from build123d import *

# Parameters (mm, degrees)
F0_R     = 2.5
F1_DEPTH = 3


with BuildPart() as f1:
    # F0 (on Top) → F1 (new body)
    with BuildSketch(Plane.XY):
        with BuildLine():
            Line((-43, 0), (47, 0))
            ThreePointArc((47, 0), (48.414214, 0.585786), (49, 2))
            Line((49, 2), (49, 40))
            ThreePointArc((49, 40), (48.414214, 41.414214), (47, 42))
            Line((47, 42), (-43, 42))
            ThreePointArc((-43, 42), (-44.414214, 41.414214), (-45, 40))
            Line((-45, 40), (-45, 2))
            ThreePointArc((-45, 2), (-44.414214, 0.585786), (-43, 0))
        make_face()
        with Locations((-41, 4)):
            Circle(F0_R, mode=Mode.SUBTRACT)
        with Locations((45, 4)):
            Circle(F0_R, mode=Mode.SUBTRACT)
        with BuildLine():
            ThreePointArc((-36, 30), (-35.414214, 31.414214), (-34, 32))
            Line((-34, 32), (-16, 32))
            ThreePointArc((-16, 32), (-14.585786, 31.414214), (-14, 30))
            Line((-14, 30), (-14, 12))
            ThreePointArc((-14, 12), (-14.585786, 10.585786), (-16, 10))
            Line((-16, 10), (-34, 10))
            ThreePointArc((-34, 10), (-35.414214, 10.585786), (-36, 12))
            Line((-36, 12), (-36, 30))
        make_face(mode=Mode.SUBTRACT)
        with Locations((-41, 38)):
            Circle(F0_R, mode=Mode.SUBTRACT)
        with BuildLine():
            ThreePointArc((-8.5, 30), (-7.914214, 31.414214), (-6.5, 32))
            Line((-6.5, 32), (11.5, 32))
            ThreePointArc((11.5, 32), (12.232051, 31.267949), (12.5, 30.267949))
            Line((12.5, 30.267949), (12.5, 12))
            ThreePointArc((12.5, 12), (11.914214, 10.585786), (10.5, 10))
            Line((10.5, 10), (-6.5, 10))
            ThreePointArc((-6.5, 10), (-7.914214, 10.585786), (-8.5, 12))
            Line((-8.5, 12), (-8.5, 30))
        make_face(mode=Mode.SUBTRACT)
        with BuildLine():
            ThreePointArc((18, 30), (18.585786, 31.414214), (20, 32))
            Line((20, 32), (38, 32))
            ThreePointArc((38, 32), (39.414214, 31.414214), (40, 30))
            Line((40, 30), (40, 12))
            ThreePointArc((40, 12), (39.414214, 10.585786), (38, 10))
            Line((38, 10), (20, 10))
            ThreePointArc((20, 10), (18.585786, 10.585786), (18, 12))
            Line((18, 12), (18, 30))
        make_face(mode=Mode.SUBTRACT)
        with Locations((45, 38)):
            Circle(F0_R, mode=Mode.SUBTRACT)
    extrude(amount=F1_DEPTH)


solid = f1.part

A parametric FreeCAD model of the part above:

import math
import FreeCAD as App
import Part
import Sketcher
from FreeCAD import Vector
Q = App.Units.Quantity

doc = App.newDocument("Part")
body = doc.addObject("PartDesign::Body", "Body")

sketch1 = body.newObject("Sketcher::SketchObject", "Sketch")
sketch1.AttachmentSupport = (doc.getObject("XY_Plane"), [""])
sketch1.MapMode = "FlatFace"
sketch1.addGeometry([
    Part.LineSegment(Vector(-43, 0, 0), Vector(47, 0, 0)),
    Part.ArcOfCircle(Part.Circle(Vector(47, 2, 0), Vector(0, 0, 1), 2), math.radians(-90), math.radians(0)),
    Part.LineSegment(Vector(49, 2, 0), Vector(49, 40, 0)),
    Part.ArcOfCircle(Part.Circle(Vector(47, 40, 0), Vector(0, 0, 1), 2), math.radians(0), math.radians(90)),
    Part.LineSegment(Vector(47, 42, 0), Vector(-43, 42, 0)),
    Part.ArcOfCircle(Part.Circle(Vector(-43, 40, 0), Vector(0, 0, 1), 2), math.radians(90), math.radians(180)),
    Part.LineSegment(Vector(-45, 40, 0), Vector(-45, 2, 0)),
    Part.ArcOfCircle(Part.Circle(Vector(-43, 2, 0), Vector(0, 0, 1), 2), math.radians(180), math.radians(270)),
    Part.Circle(Vector(-41, 4, 0), Vector(0, 0, 1), 2.5),
    Part.Circle(Vector(45, 4, 0), Vector(0, 0, 1), 2.5),
    Part.LineSegment(Vector(-36, 12, 0), Vector(-36, 30, 0)),
    Part.ArcOfCircle(Part.Circle(Vector(-34, 30, 0), Vector(0, 0, 1), 2), math.radians(90), math.radians(180)),
    Part.LineSegment(Vector(-34, 32, 0), Vector(-16, 32, 0)),
    Part.ArcOfCircle(Part.Circle(Vector(-16, 30, 0), Vector(0, 0, 1), 2), math.radians(0), math.radians(90)),
    Part.LineSegment(Vector(-14, 30, 0), Vector(-14, 12, 0)),
    Part.ArcOfCircle(Part.Circle(Vector(-16, 12, 0), Vector(0, 0, 1), 2), math.radians(-90), math.radians(0)),
    Part.LineSegment(Vector(-16, 10, 0), Vector(-34, 10, 0)),
    Part.ArcOfCircle(Part.Circle(Vector(-34, 12, 0), Vector(0, 0, 1), 2), math.radians(180), math.radians(270)),
    Part.Circle(Vector(-41, 38, 0), Vector(0, 0, 1), 2.5),
    Part.LineSegment(Vector(-8.5, 12, 0), Vector(-8.5, 30, 0)),
    Part.ArcOfCircle(Part.Circle(Vector(-6.5, 30, 0), Vector(0, 0, 1), 2), math.radians(90), math.radians(180)),
    Part.LineSegment(Vector(-6.5, 32, 0), Vector(11.5, 32, 0)),
    Part.ArcOfCircle(Part.Circle(Vector(10.5, 30.3, 0), Vector(0, 0, 1), 2), math.radians(0), math.radians(60)),
    Part.LineSegment(Vector(12.5, 30.3, 0), Vector(12.5, 12, 0)),
    Part.ArcOfCircle(Part.Circle(Vector(10.5, 12, 0), Vector(0, 0, 1), 2), math.radians(-90), math.radians(0)),
    Part.LineSegment(Vector(10.5, 10, 0), Vector(-6.5, 10, 0)),
    Part.ArcOfCircle(Part.Circle(Vector(-6.5, 12, 0), Vector(0, 0, 1), 2), math.radians(180), math.radians(270)),
    Part.LineSegment(Vector(18, 12, 0), Vector(18, 30, 0)),
    Part.ArcOfCircle(Part.Circle(Vector(20, 30, 0), Vector(0, 0, 1), 2), math.radians(90), math.radians(180)),
    Part.LineSegment(Vector(20, 32, 0), Vector(38, 32, 0)),
    Part.ArcOfCircle(Part.Circle(Vector(38, 30, 0), Vector(0, 0, 1), 2), math.radians(0), math.radians(90)),
    Part.LineSegment(Vector(40, 30, 0), Vector(40, 12, 0)),
    Part.ArcOfCircle(Part.Circle(Vector(38, 12, 0), Vector(0, 0, 1), 2), math.radians(-90), math.radians(0)),
    Part.LineSegment(Vector(38, 10, 0), Vector(20, 10, 0)),
    Part.ArcOfCircle(Part.Circle(Vector(20, 12, 0), Vector(0, 0, 1), 2), math.radians(180), math.radians(270)),
    Part.Circle(Vector(45, 38, 0), Vector(0, 0, 1), 2.5),
], False)
sketch1.addConstraint([
    Sketcher.Constraint("Tangent", 0, 2, 1, 1),
    Sketcher.Constraint("Tangent", 1, 2, 2, 1),
    Sketcher.Constraint("Tangent", 2, 2, 3, 1),
    Sketcher.Constraint("Tangent", 3, 2, 4, 1),
    Sketcher.Constraint("Tangent", 4, 2, 5, 1),
    Sketcher.Constraint("Tangent", 5, 2, 6, 1),
    Sketcher.Constraint("Tangent", 6, 2, 7, 1),
    Sketcher.Constraint("Tangent", 7, 2, 0, 1),
    Sketcher.Constraint("Tangent", 10, 2, 11, 2),
    Sketcher.Constraint("Tangent", 11, 1, 12, 1),
    Sketcher.Constraint("Tangent", 12, 2, 13, 2),
    Sketcher.Constraint("Tangent", 13, 1, 14, 1),
    Sketcher.Constraint("Tangent", 14, 2, 15, 2),
    Sketcher.Constraint("Tangent", 15, 1, 16, 1),
    Sketcher.Constraint("Tangent", 16, 2, 17, 2),
    Sketcher.Constraint("Tangent", 17, 1, 10, 1),
    Sketcher.Constraint("Tangent", 19, 2, 20, 2),
    Sketcher.Constraint("Tangent", 20, 1, 21, 1),
    Sketcher.Constraint("Coincident", 21, 2, 22, 2),
    Sketcher.Constraint("Tangent", 22, 1, 23, 1),
    Sketcher.Constraint("Tangent", 23, 2, 24, 2),
    Sketcher.Constraint("Tangent", 24, 1, 25, 1),
    Sketcher.Constraint("Tangent", 25, 2, 26, 2),
    Sketcher.Constraint("Tangent", 26, 1, 19, 1),
    Sketcher.Constraint("Tangent", 27, 2, 28, 2),
    Sketcher.Constraint("Tangent", 28, 1, 29, 1),
    Sketcher.Constraint("Tangent", 29, 2, 30, 2),
    Sketcher.Constraint("Tangent", 30, 1, 31, 1),
    Sketcher.Constraint("Tangent", 31, 2, 32, 2),
    Sketcher.Constraint("Tangent", 32, 1, 33, 1),
    Sketcher.Constraint("Tangent", 33, 2, 34, 2),
    Sketcher.Constraint("Tangent", 34, 1, 27, 1),
    Sketcher.Constraint("Horizontal", 0),
    Sketcher.Constraint("Vertical", 2),
    Sketcher.Constraint("Horizontal", 4),
    Sketcher.Constraint("Vertical", 6),
    Sketcher.Constraint("Vertical", 10),
    Sketcher.Constraint("Horizontal", 12),
    Sketcher.Constraint("Vertical", 14),
    Sketcher.Constraint("Horizontal", 16),
    Sketcher.Constraint("Vertical", 19),
    Sketcher.Constraint("Horizontal", 21),
    Sketcher.Constraint("Vertical", 23),
    Sketcher.Constraint("Horizontal", 25),
    Sketcher.Constraint("Vertical", 27),
    Sketcher.Constraint("Horizontal", 29),
    Sketcher.Constraint("Vertical", 31),
    Sketcher.Constraint("Horizontal", 33),
    Sketcher.Constraint("Equal", 1, 3),
    Sketcher.Constraint("Equal", 3, 5),
    Sketcher.Constraint("Equal", 5, 7),
    Sketcher.Constraint("Equal", 8, 9),
    Sketcher.Constraint("Equal", 7, 11),
    Sketcher.Constraint("Equal", 11, 13),
    Sketcher.Constraint("Equal", 13, 15),
    Sketcher.Constraint("Equal", 15, 17),
    Sketcher.Constraint("Equal", 9, 18),
    Sketcher.Constraint("Equal", 17, 20),
    Sketcher.Constraint("Equal", 20, 22),
    Sketcher.Constraint("Equal", 22, 24),
    Sketcher.Constraint("Equal", 24, 26),
    Sketcher.Constraint("Equal", 26, 28),
    Sketcher.Constraint("Equal", 28, 30),
    Sketcher.Constraint("Equal", 30, 32),
    Sketcher.Constraint("Equal", 32, 34),
    Sketcher.Constraint("Equal", 18, 35),
    Sketcher.Constraint("PointOnObject", 0, 2, -1),
    Sketcher.Constraint("Horizontal", 8, 3, 9, 3),
    Sketcher.Constraint("Horizontal", 13, 3, 20, 3),
    Sketcher.Constraint("Horizontal", 17, 3, 24, 3),
    Sketcher.Constraint("Horizontal", 20, 3, 28, 3),
    Sketcher.Constraint("Horizontal", 26, 3, 32, 3),
    Sketcher.Constraint("Horizontal", 18, 3, 35, 3),
    Sketcher.Constraint("Vertical", 8, 3, 18, 3),
    Sketcher.Constraint("Vertical", 9, 3, 35, 3),
    Sketcher.Constraint("Equal", 16, 21),
    Sketcher.Constraint("Equal", 21, 29),
    Sketcher.Constraint("Equal", 33, 10),
    Sketcher.Constraint("Diameter", 8, Q("5 mm")),
    Sketcher.Constraint("Radius", 1, Q("1.999999 mm")),
    Sketcher.Constraint("DistanceX", 0, 1, 0, 2, Q("90 mm")),
    Sketcher.Constraint("DistanceX", 12, 1, 12, 2, Q("18 mm")),
    Sketcher.Constraint("DistanceX", 25, 2, 25, 1, Q("17 mm")),
    Sketcher.Constraint("DistanceY", 2, 1, 2, 2, Q("38 mm")),
    Sketcher.Constraint("DistanceX", -1, 1, 1, 3, Q("47.000001 mm")),
    Sketcher.Constraint("DistanceX", 8, 3, -1, 1, Q("41 mm")),
    Sketcher.Constraint("DistanceY", -1, 1, 8, 3, Q("4 mm")),
    Sketcher.Constraint("DistanceX", -1, 1, 9, 3, Q("45 mm")),
    Sketcher.Constraint("DistanceX", 11, 3, -1, 1, Q("34.000001 mm")),
    Sketcher.Constraint("DistanceY", -1, 1, 11, 3, Q("30.000001 mm")),
    Sketcher.Constraint("DistanceY", -1, 1, 18, 3, Q("38 mm")),
    Sketcher.Constraint("DistanceX", -1, 1, 28, 3, Q("19.999999 mm")),
    Sketcher.Constraint("DistanceX", 20, 3, -1, 1, Q("6.500001 mm")),
])
pad1 = body.newObject("PartDesign::Pad", "Pad")
pad1.Profile = sketch1
pad1.Length = 3

doc.recompute()
